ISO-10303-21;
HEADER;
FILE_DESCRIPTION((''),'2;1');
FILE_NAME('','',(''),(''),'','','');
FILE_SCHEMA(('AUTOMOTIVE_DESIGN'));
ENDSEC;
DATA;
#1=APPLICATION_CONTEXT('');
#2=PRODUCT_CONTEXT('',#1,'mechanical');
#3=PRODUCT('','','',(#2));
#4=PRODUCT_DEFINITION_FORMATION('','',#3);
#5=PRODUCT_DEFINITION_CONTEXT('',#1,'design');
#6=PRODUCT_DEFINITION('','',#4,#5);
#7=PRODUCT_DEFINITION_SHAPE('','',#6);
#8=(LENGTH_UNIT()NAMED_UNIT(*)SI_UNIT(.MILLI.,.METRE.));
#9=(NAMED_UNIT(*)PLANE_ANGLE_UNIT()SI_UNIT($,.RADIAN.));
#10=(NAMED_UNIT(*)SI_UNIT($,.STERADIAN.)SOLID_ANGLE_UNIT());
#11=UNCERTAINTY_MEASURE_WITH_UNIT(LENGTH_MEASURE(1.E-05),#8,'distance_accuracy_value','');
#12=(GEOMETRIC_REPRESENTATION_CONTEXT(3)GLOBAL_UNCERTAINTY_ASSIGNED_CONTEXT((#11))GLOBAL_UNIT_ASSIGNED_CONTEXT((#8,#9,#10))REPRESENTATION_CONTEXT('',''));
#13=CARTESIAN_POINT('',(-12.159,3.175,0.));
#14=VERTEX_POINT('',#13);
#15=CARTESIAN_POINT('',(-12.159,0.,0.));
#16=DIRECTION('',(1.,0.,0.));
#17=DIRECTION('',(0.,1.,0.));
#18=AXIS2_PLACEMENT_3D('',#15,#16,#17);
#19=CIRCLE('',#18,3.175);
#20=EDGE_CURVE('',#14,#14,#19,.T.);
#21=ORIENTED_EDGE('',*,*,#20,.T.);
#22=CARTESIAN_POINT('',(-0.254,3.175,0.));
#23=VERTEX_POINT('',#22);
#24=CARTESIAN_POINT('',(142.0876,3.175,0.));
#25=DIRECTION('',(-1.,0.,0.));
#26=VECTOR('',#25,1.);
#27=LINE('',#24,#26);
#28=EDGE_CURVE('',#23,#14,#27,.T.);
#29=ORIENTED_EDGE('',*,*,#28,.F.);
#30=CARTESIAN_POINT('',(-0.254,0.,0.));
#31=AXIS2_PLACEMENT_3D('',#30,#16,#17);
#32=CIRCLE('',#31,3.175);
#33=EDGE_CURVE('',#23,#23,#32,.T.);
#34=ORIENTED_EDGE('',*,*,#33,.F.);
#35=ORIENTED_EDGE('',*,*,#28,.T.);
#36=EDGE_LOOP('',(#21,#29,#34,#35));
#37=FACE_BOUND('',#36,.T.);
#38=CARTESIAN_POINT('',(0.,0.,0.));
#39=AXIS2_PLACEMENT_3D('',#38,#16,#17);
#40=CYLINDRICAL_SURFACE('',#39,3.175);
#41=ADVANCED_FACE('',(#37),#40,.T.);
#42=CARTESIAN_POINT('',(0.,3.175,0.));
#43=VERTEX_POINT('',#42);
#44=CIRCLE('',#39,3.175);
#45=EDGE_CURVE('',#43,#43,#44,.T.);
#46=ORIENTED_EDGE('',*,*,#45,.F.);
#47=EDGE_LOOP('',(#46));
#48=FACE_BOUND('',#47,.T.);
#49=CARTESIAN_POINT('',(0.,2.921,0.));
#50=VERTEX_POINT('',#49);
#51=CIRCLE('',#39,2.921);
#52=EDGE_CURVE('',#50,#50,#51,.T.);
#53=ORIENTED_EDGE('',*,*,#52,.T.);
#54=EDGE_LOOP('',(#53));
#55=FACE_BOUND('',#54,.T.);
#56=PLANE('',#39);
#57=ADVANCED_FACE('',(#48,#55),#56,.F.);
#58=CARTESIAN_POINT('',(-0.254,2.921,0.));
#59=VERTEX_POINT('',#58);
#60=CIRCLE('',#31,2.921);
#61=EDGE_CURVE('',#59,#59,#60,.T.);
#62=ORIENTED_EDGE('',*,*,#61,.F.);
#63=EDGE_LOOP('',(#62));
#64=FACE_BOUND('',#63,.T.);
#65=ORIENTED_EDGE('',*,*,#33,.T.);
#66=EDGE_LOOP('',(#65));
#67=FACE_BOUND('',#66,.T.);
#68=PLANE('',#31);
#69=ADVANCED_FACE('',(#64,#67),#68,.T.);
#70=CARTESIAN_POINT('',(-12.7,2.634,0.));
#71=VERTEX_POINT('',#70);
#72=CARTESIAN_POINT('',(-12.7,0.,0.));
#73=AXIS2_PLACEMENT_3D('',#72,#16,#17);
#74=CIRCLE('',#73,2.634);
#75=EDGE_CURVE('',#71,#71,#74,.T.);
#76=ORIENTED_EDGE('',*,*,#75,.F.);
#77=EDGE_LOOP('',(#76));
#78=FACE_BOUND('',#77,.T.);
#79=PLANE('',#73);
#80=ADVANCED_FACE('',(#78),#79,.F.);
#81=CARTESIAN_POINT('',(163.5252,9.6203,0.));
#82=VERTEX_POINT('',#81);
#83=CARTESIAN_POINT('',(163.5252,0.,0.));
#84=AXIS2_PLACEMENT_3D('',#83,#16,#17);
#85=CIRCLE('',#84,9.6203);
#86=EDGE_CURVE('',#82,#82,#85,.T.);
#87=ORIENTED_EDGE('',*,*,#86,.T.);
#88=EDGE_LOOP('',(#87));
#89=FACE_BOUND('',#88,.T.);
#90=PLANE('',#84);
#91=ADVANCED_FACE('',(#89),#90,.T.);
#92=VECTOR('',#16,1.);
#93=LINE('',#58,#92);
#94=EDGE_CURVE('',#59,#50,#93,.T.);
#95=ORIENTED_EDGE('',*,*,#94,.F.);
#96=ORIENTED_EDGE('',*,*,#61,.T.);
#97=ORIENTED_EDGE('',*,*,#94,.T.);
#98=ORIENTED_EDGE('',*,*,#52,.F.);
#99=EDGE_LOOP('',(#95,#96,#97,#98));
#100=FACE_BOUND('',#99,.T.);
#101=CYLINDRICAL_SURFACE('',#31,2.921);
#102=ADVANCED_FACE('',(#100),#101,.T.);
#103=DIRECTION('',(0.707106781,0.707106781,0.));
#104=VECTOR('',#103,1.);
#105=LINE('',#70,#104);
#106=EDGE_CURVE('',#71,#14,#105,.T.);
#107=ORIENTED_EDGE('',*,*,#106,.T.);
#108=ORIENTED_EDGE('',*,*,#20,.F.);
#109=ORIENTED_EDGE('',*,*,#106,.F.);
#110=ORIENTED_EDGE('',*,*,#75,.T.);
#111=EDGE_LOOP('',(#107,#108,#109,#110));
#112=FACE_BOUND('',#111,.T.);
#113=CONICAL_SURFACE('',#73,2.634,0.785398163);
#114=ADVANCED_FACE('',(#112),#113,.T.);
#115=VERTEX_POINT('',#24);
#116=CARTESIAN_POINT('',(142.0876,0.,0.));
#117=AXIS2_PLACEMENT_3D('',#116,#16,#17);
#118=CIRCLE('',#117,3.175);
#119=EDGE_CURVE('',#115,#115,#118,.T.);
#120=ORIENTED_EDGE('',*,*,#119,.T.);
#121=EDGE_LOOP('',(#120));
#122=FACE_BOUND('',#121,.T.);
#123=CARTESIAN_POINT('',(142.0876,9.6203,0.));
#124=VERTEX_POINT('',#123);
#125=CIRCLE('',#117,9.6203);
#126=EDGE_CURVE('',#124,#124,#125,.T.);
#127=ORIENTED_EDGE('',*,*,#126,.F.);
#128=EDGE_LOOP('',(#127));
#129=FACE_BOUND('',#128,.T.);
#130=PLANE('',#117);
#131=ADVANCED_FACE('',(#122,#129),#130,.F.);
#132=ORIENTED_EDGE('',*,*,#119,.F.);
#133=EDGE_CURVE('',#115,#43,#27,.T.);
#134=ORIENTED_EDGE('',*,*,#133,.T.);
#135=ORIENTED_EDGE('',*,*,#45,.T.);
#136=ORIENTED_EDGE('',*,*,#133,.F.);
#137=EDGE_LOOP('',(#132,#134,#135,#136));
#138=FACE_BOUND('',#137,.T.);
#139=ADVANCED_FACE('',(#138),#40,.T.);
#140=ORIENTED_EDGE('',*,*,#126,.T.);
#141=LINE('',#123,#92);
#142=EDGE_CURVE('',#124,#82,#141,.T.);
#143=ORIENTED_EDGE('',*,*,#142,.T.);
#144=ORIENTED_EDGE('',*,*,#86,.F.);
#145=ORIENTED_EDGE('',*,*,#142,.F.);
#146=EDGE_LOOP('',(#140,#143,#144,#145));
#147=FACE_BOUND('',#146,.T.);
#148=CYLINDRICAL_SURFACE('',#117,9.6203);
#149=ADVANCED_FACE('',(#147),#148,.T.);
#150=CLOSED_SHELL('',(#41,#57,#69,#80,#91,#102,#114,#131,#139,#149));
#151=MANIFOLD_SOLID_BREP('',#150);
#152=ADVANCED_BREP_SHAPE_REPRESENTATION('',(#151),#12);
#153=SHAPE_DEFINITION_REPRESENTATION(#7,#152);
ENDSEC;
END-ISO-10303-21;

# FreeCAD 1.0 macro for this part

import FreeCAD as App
import Part
import Sketcher

V = App.Vector
Q = App.Units.Quantity

doc = App.newDocument("Part")
params = doc.addObject("Spreadsheet::Sheet", "Params")
for row, (alias, value) in enumerate([
    ("sketch1_width", "6.438 in"),
    ("sketch1_width2", "0.844 in"),
    ("sketch1_height", "0.125 in"),
    ("revolution_angle", "360 deg"),
    ("sketch2_width", "0.5 in"),
    ("sketch2_height", "0.125 in"),
    ("revolution2_angle", "360 deg"),
    ("sketch3_width", "0.01 in"),
    ("sketch3_height", "0.02 in"),
    ("groove_angle", "360 deg"),
], start=1):
    params.set(f"A{row}", alias)
    params.set(f"B{row}", "=" + value)
    params.setAlias(f"B{row}", alias)

body = doc.addObject("PartDesign::Body", "Body")

# Sketch on XY plane
sketch1 = doc.addObject("Sketcher::SketchObject", "Sketch")
body.addObject(sketch1)
sketch1.AttachmentSupport = (doc.XY_Plane, [""])
sketch1.MapMode = "FlatFace"
sketch1.addGeometry(Part.LineSegment(V(0, 0, 0), V(163.5252, 0, 0)), False)
sketch1.addGeometry(Part.LineSegment(V(163.5252, 0, 0), V(163.5252, 9.6203, 0)), False)
sketch1.addGeometry(Part.LineSegment(V(163.5252, 9.6203, 0), V(142.0876, 9.6203, 0)), False)
sketch1.addGeometry(Part.LineSegment(V(142.0876, 9.6203, 0), V(142.0876, 3.175, 0)), False)
sketch1.addGeometry(Part.LineSegment(V(142.0876, 3.175, 0), V(0, 3.175, 0)), False)
sketch1.addGeometry(Part.LineSegment(V(0, 3.175, 0), V(0, 0, 0)), False)
sketch1.addConstraint(Sketcher.Constraint("Coincident", 0, 2, 1, 1))
sketch1.addConstraint(Sketcher.Constraint("Coincident", 1, 2, 2, 1))
sketch1.addConstraint(Sketcher.Constraint("Coincident", 2, 2, 3, 1))
sketch1.addConstraint(Sketcher.Constraint("Coincident", 3, 2, 4, 1))
sketch1.addConstraint(Sketcher.Constraint("Coincident", 4, 2, 5, 1))
sketch1.addConstraint(Sketcher.Constraint("Coincident", 5, 2, 0, 1))
sketch1.addConstraint(Sketcher.Constraint("Horizontal", 0))
sketch1.addConstraint(Sketcher.Constraint("Vertical", 1))
sketch1.addConstraint(Sketcher.Constraint("Horizontal", 2))
sketch1.addConstraint(Sketcher.Constraint("Vertical", 3))
sketch1.addConstraint(Sketcher.Constraint("Horizontal", 4))
sketch1.addConstraint(Sketcher.Constraint("Vertical", 5))
sketch1.addConstraint(Sketcher.Constraint("Coincident", 5, 2, -1, 1))
sketch1.addConstraint(Sketcher.Constraint("DistanceX", 0, 1, 0, 2, Q("6.438 in")))
sketch1.addConstraint(Sketcher.Constraint("DistanceX", 2, 2, 2, 1, Q("0.844 in")))
sketch1.addConstraint(Sketcher.Constraint("DistanceY", 5, 2, 5, 1, Q("0.125 in")))
sketch1.addConstraint(Sketcher.Constraint("DistanceY", 1, 1, 1, 2, Q("9.6203 mm")))
sketch1.setExpression("Constraints[13]", "Params.sketch1_width")
sketch1.setExpression("Constraints[14]", "Params.sketch1_width2")
sketch1.setExpression("Constraints[15]", "Params.sketch1_height")
revolution = doc.addObject("PartDesign::Revolution", "Revolution")
body.addObject(revolution)
revolution.Profile = sketch1
revolution.ReferenceAxis = (sketch1, ["H_Axis"])
revolution.setExpression("Angle", "Params.revolution_angle")

# Sketch on XY plane
sketch2 = doc.addObject("Sketcher::SketchObject", "Sketch001")
body.addObject(sketch2)
sketch2.AttachmentSupport = (doc.XY_Plane, [""])
sketch2.MapMode = "FlatFace"
sketch2.addGeometry(Part.LineSegment(V(-12.7, 0, 0), V(0, 0, 0)), False)
sketch2.addGeometry(Part.LineSegment(V(0, 0, 0), V(0, 3.175, 0)), False)
sketch2.addGeometry(Part.LineSegment(V(0, 3.175, 0), V(-12.159, 3.175, 0)), False)
sketch2.addGeometry(Part.LineSegment(V(-12.159, 3.175, 0), V(-12.7, 2.634, 0)), False)
sketch2.addGeometry(Part.LineSegment(V(-12.7, 2.634, 0), V(-12.7, 0, 0)), False)
sketch2.addConstraint(Sketcher.Constraint("Coincident", 0, 2, 1, 1))
sketch2.addConstraint(Sketcher.Constraint("Coincident", 1, 2, 2, 1))
sketch2.addConstraint(Sketcher.Constraint("Coincident", 2, 2, 3, 1))
sketch2.addConstraint(Sketcher.Constraint("Coincident", 3, 2, 4, 1))
sketch2.addConstraint(Sketcher.Constraint("Coincident", 4, 2, 0, 1))
sketch2.addConstraint(Sketcher.Constraint("Horizontal", 0))
sketch2.addConstraint(Sketcher.Constraint("Vertical", 1))
sketch2.addConstraint(Sketcher.Constraint("Horizontal", 2))
sketch2.addConstraint(Sketcher.Constraint("Vertical", 4))
sketch2.addConstraint(Sketcher.Constraint("Coincident", 0, 2, -1, 1))
sketch2.addConstraint(Sketcher.Constraint("DistanceX", 0, 1, 0, 2, Q("0.5 in")))
sketch2.addConstraint(Sketcher.Constraint("Angle", 3, Q("-135 deg")))
sketch2.addConstraint(Sketcher.Constraint("DistanceY", 1, 1, 1, 2, Q("0.125 in")))
sketch2.addConstraint(Sketcher.Constraint("DistanceX", 2, 2, 2, 1, Q("0.4787 in")))
sketch2.setExpression("Constraints[10]", "Params.sketch2_width")
sketch2.setExpression("Constraints[12]", "Params.sketch2_height")
revolution2 = doc.addObject("PartDesign::Revolution", "Revolution001")
body.addObject(revolution2)
revolution2.Profile = sketch2
revolution2.ReferenceAxis = (sketch2, ["H_Axis"])
revolution2.setExpression("Angle", "Params.revolution2_angle")

# Sketch on XY plane
sketch3 = doc.addObject("Sketcher::SketchObject", "Sketch002")
body.addObject(sketch3)
sketch3.AttachmentSupport = (doc.XY_Plane, [""])
sketch3.MapMode = "FlatFace"
sketch3.addGeometry(Part.LineSegment(V(-0.254, 3.429, 0), V(-0.254, 2.921, 0)), False)
sketch3.addGeometry(Part.LineSegment(V(-0.254, 2.921, 0), V(0, 2.921, 0)), False)
sketch3.addGeometry(Part.LineSegment(V(0, 2.921, 0), V(0, 3.429, 0)), False)
sketch3.addGeometry(Part.LineSegment(V(0, 3.429, 0), V(-0.254, 3.429, 0)), False)
sketch3.addConstraint(Sketcher.Constraint("Coincident", 0, 2, 1, 1))
sketch3.addConstraint(Sketcher.Constraint("Coincident", 1, 2, 2, 1))
sketch3.addConstraint(Sketcher.Constraint("Coincident", 2, 2, 3, 1))
sketch3.addConstraint(Sketcher.Constraint("Coincident", 3, 2, 0, 1))
sketch3.addConstraint(Sketcher.Constraint("Vertical", 0))
sketch3.addConstraint(Sketcher.Constraint("Horizontal", 1))
sketch3.addConstraint(Sketcher.Constraint("Vertical", 2))
sketch3.addConstraint(Sketcher.Constraint("Horizontal", 3))
sketch3.addConstraint(Sketcher.Constraint("PointOnObject", 1, 2, -2))
sketch3.addConstraint(Sketcher.Constraint("DistanceX", 1, 1, 1, 2, Q("0.01 in")))
sketch3.addConstraint(Sketcher.Constraint("DistanceY", 0, 2, 0, 1, Q("0.02 in")))
sketch3.addConstraint(Sketcher.Constraint("DistanceY", -1, 1, 0, 2, Q("0.115 in")))
sketch3.setExpression("Constraints[9]", "Params.sketch3_width")
sketch3.setExpression("Constraints[10]", "Params.sketch3_height")
groove = doc.addObject("PartDesign::Groove", "Groove")
body.addObject(groove)
groove.Profile = sketch3
groove.ReferenceAxis = (sketch3, ["H_Axis"])
groove.setExpression("Angle", "Params.groove_angle")

doc.recompute()
